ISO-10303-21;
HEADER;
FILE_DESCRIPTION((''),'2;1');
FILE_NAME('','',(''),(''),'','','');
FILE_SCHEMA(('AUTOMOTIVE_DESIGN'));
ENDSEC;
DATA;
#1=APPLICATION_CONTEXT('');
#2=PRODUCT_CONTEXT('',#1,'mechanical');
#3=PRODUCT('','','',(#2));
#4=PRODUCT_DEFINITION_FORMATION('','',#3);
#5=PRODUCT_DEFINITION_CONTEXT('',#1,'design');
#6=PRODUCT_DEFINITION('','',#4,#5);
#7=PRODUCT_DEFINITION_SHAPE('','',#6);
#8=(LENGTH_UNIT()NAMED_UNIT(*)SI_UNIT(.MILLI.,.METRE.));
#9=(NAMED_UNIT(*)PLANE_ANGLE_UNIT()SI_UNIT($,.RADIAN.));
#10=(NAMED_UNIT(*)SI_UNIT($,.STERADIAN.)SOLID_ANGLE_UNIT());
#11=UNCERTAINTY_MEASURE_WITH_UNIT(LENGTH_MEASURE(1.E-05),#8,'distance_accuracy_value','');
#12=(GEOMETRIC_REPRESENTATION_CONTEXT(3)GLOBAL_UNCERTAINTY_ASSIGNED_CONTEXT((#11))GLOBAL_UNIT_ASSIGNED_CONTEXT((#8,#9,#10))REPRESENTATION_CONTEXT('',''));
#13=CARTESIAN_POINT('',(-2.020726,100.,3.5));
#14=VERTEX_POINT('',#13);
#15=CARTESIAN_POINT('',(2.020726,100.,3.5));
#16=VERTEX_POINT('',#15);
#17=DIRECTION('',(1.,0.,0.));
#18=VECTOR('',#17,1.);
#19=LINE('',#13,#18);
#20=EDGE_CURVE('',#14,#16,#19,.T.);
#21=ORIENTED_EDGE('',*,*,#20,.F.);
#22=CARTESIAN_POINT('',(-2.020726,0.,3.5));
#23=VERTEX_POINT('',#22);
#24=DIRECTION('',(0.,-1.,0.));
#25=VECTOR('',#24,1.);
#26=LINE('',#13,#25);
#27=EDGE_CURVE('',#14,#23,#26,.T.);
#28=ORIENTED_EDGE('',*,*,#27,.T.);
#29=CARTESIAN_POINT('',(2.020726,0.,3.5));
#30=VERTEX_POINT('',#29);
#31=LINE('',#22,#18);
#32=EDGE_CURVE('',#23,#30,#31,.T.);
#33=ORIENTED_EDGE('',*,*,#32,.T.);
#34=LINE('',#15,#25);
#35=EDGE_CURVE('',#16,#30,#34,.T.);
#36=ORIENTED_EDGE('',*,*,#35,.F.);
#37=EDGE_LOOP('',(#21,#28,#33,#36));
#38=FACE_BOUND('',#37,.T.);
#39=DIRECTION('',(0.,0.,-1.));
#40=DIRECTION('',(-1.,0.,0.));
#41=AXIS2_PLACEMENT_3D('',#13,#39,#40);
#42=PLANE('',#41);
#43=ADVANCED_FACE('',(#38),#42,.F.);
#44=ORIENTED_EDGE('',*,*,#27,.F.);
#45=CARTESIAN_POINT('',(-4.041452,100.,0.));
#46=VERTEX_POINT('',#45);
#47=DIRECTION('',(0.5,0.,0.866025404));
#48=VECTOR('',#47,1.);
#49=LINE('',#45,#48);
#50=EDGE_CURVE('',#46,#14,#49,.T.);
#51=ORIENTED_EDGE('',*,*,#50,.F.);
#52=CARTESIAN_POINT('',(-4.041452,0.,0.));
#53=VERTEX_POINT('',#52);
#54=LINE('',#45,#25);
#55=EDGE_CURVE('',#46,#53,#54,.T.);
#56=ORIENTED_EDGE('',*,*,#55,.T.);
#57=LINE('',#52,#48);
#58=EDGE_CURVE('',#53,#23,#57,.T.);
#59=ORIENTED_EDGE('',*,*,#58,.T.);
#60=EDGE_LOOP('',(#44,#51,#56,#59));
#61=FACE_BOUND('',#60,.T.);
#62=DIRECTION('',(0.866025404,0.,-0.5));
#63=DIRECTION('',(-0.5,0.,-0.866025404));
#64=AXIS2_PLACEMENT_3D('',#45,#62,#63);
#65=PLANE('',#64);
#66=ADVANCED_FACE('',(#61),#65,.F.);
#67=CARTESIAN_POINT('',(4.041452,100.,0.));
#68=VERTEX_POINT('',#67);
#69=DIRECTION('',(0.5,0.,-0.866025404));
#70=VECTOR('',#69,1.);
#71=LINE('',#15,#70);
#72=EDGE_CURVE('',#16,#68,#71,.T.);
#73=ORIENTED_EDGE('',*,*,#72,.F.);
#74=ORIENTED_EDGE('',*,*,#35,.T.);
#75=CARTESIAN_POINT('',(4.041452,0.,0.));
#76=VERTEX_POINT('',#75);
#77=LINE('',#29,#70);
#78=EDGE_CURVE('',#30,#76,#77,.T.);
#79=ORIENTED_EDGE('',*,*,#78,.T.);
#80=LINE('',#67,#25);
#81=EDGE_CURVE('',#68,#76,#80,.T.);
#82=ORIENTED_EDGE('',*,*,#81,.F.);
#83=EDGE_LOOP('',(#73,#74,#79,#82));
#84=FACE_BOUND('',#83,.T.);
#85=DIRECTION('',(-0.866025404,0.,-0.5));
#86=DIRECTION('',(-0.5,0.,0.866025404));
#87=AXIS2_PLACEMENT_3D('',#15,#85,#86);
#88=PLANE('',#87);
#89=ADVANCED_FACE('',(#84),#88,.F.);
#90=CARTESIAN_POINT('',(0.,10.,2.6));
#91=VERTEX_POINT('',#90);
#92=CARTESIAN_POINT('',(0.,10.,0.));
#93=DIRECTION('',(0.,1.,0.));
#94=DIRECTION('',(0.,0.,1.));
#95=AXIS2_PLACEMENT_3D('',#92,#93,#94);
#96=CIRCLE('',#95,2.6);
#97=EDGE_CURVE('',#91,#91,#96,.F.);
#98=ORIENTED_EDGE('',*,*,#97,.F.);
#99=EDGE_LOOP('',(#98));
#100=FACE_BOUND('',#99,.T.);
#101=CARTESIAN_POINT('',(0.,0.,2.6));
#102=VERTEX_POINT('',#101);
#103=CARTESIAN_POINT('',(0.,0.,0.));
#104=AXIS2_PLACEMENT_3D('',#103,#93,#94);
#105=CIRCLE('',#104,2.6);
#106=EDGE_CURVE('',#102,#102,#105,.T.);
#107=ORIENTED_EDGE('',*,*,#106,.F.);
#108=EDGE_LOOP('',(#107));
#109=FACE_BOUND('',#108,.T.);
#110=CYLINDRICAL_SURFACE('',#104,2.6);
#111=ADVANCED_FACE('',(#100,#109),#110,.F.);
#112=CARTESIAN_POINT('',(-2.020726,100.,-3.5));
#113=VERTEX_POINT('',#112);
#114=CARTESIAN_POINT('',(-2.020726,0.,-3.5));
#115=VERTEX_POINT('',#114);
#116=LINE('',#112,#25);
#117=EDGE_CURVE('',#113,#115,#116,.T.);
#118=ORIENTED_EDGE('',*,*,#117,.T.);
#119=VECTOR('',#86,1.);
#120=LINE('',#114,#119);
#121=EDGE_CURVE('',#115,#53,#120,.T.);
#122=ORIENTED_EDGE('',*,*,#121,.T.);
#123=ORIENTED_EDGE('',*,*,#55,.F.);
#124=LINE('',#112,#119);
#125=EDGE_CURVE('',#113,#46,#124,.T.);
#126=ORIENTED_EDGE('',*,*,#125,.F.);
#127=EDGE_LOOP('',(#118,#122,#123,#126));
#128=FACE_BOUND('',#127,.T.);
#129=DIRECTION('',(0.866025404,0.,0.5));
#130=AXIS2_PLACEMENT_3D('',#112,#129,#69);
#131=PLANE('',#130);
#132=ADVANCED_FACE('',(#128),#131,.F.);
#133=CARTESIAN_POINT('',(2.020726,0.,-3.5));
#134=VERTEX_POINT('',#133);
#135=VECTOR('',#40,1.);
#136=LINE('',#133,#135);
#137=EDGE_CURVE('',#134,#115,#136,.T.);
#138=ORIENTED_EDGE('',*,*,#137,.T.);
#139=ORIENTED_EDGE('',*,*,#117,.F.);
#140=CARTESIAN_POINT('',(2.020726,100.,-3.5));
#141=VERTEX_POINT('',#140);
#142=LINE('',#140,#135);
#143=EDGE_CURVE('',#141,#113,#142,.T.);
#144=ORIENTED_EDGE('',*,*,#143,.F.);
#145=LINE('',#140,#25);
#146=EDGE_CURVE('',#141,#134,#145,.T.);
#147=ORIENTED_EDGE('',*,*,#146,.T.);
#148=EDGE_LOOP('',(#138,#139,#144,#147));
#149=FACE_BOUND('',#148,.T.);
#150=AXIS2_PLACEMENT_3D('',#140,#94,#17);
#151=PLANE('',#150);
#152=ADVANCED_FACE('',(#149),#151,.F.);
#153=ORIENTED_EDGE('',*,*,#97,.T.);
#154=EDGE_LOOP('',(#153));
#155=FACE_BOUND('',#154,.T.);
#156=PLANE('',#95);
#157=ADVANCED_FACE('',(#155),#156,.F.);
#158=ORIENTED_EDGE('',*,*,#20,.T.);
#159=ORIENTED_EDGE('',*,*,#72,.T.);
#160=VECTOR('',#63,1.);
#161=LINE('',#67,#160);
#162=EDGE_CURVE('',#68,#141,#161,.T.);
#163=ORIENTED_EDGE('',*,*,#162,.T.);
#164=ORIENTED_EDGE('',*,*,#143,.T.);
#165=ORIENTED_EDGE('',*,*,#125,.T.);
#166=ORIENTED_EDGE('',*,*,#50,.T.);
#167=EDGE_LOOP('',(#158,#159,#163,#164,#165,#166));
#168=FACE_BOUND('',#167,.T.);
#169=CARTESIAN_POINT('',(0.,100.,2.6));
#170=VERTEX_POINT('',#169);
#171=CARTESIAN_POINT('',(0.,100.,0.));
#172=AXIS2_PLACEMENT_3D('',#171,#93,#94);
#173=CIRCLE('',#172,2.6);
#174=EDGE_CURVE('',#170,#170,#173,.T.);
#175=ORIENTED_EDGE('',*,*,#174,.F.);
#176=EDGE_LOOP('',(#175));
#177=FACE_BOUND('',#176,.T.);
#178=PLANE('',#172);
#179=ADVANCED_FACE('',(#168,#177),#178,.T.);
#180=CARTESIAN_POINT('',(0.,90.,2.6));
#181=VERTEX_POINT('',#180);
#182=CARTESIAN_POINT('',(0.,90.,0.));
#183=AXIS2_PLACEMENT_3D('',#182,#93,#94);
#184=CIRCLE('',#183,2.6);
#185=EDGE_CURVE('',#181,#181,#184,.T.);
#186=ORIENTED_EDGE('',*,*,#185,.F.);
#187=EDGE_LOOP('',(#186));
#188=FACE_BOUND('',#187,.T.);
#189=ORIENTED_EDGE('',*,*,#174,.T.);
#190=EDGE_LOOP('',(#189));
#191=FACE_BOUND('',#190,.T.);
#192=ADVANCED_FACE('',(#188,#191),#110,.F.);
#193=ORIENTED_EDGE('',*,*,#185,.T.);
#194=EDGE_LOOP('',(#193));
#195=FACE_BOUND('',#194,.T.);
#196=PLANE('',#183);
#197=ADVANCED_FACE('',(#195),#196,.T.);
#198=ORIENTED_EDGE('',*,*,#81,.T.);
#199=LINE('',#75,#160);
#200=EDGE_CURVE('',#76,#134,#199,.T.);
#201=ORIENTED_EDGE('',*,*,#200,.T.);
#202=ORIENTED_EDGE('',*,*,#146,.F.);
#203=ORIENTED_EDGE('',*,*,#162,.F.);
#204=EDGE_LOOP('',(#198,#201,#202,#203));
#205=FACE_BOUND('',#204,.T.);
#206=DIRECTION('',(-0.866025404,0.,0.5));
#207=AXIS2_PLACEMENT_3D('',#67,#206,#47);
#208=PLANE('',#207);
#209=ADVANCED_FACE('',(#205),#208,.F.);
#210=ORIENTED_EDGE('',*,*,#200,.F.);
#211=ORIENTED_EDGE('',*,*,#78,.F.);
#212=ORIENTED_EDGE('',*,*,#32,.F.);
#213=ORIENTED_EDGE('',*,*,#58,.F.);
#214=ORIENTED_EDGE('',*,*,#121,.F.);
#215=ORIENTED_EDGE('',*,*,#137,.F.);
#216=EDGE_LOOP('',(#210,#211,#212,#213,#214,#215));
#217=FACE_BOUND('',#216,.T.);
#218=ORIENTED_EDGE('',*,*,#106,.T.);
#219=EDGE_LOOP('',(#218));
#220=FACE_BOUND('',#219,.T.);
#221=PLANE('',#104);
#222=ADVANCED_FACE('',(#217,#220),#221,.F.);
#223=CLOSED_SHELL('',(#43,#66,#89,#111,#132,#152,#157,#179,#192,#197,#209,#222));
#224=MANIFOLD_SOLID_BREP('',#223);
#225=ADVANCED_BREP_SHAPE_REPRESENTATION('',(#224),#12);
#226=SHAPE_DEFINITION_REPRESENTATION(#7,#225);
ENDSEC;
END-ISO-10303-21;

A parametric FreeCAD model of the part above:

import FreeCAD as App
import Part
import Sketcher
Q = App.Units.Quantity


def add_polygon(sketch, points):
    """Adds a closed chain of lines whose ends are joined by coincident constraints."""
    first, n = sketch.GeometryCount, len(points)
    for a, b in zip(points, points[1:] + points[:1]):
        sketch.addGeometry(Part.LineSegment(App.Vector(*a, 0), App.Vector(*b, 0)), False)
    for i in range(n):
        sketch.addConstraint(Sketcher.Constraint("Coincident", first + i, 2, first + (i + 1) % n, 1))

doc = App.newDocument("Part")
params = doc.addObject("Spreadsheet::Sheet", "Params")
for row, (alias, value) in enumerate([
    ("pad1_length", "100 mm"),
    ("sketch2_diameter", "5.2 mm"),
    ("sketch3_diameter", "5.2 mm"),
    ("pad2_length", "80 mm"),
], start=1):
    params.set(f"A{row}", alias)
    params.set(f"B{row}", "=" + value)
    params.setAlias(f"B{row}", alias)

body = doc.addObject("PartDesign::Body", "Body")

sketch1 = body.newObject("Sketcher::SketchObject", "Sketch")
sketch1.AttachmentSupport = (doc.getObject("XZ_Plane"), [""])
sketch1.MapMode = "FlatFace"
add_polygon(sketch1, [(4, 0), (2, -3.5), (-2, -3.5), (-4, 0), (-2, 3.5), (2, 3.5)])
sketch1.addConstraint([
    Sketcher.Constraint("Horizontal", 1),
    Sketcher.Constraint("Horizontal", 4),
    Sketcher.Constraint("Symmetric", 0, 2, 3, 2, -1, 1),
    Sketcher.Constraint("Symmetric", 2, 2, 5, 2, -1, 1),
    Sketcher.Constraint("PointOnObject", 2, 2, -1),
    Sketcher.Constraint("Parallel", 2, 5),
    Sketcher.Constraint("Vertical", 1, 2, 3, 2),
    Sketcher.Constraint("Angle", 0, Q("-120 deg")),
    Sketcher.Constraint("DistanceY", 1, 2, 3, 2, 7.0),
    Sketcher.Constraint("DistanceX", 1, 2, 1, 1, 4.041452),
])
pad1 = body.newObject("PartDesign::Pad", "Pad")
pad1.Profile = sketch1
pad1.setExpression("Length", "Params.pad1_length")
pad1.Reversed = True

sketch2 = body.newObject("Sketcher::SketchObject", "Sketch001")
sketch2.AttachmentSupport = (doc.getObject("XZ_Plane"), [""])
sketch2.MapMode = "FlatFace"
sketch2.AttachmentOffset = App.Placement(App.Vector(0, 0, -100), App.Rotation())
sketch2.addGeometry(Part.Circle(App.Vector(0, 0, 0), App.Vector(0, 0, 1), 2.6), False)
sketch2.addConstraint([
    Sketcher.Constraint("Coincident", 0, 3, -1, 1),
    Sketcher.Constraint("Diameter", 0, 5.2),
])
sketch2.setExpression("Constraints[1]", "Params.sketch2_diameter")
pocket1 = body.newObject("PartDesign::Pocket", "Pocket")
pocket1.Profile = sketch2
pocket1.Type = "ThroughAll"
pocket1.Reversed = True

sketch3 = body.newObject("Sketcher::SketchObject", "Sketch002")
sketch3.AttachmentSupport = (doc.getObject("XZ_Plane"), [""])
sketch3.MapMode = "FlatFace"
sketch3.AttachmentOffset = App.Placement(App.Vector(0, 0, -90), App.Rotation())
sketch3.addGeometry(Part.Circle(App.Vector(0, 0, 0), App.Vector(0, 0, 1), 2.6), False)
sketch3.addConstraint([
    Sketcher.Constraint("Coincident", 0, 3, -1, 1),
    Sketcher.Constraint("Diameter", 0, 5.2),
])
sketch3.setExpression("Constraints[1]", "Params.sketch3_diameter")
pad2 = body.newObject("PartDesign::Pad", "Pad001")
pad2.Profile = sketch3
pad2.setExpression("Length", "Params.pad2_length")

doc.recompute()
